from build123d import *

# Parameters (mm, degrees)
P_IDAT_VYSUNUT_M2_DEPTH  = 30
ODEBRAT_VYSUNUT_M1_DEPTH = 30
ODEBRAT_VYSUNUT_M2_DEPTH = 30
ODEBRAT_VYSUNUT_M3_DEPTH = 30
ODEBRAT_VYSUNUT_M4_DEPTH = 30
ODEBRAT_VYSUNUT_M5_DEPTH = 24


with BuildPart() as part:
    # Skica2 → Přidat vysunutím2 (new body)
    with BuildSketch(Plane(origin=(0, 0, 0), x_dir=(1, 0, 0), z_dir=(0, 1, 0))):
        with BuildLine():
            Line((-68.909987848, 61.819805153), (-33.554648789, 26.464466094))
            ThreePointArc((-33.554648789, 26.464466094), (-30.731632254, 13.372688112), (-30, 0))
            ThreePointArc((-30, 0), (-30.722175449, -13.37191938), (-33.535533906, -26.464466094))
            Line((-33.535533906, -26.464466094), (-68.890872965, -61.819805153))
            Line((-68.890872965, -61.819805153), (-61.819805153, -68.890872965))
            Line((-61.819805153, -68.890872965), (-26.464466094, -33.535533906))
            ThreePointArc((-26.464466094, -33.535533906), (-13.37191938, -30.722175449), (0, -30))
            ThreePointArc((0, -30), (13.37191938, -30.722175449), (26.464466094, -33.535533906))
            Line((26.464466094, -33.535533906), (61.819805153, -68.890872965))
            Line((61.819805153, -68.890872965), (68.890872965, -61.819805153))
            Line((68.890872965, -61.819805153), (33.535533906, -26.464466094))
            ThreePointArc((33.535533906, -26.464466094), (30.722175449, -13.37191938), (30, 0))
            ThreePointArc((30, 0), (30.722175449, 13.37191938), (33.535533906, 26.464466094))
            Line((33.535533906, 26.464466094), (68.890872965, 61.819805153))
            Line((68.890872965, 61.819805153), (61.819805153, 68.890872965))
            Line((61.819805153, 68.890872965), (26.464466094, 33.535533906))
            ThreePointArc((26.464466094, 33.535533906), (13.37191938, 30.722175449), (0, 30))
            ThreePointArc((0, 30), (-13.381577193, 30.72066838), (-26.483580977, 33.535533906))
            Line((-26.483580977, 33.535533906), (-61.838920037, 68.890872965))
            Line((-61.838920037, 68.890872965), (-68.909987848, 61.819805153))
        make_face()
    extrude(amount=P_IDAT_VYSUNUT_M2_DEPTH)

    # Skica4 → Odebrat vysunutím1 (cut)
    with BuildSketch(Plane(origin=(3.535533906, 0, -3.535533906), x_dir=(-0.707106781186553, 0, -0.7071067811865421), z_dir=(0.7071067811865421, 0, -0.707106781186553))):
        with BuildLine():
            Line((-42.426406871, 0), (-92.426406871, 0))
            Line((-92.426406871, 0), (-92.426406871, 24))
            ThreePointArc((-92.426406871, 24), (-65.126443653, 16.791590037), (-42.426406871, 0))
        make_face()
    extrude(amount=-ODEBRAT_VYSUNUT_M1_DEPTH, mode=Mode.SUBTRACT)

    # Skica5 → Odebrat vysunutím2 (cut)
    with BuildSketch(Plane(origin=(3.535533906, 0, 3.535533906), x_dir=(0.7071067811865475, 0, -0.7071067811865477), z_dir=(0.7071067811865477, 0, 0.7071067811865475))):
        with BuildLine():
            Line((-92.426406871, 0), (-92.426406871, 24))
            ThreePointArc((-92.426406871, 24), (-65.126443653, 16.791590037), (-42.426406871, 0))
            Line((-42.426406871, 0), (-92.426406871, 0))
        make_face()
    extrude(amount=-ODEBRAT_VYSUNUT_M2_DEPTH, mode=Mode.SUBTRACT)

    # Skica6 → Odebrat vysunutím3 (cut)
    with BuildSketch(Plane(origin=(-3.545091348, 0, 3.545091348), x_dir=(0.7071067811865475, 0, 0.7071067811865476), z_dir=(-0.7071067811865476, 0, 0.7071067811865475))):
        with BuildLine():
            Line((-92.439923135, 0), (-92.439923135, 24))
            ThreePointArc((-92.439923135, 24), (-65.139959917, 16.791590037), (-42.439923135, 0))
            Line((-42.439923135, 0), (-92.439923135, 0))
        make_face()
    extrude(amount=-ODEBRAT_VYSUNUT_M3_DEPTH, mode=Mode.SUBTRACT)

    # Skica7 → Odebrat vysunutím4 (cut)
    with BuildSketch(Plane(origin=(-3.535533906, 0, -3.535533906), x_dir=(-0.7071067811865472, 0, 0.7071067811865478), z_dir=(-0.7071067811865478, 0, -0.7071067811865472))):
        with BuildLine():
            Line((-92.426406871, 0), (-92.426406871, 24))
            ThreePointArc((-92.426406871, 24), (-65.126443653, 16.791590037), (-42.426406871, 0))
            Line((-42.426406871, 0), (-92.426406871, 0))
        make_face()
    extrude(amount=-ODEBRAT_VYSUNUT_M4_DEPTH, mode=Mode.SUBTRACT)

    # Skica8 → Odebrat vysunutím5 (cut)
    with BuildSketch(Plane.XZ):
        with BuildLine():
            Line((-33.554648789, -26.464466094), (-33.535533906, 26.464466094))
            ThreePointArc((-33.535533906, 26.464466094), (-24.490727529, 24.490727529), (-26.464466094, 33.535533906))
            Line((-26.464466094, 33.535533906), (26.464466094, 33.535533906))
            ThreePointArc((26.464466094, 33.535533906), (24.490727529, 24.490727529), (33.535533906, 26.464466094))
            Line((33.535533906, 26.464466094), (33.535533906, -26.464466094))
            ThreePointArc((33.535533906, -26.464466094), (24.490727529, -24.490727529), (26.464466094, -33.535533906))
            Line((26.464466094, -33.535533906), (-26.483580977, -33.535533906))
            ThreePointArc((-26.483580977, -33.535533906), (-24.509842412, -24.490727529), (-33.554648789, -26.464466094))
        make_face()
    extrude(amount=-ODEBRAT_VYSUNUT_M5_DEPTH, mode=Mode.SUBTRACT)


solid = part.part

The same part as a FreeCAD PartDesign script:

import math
import FreeCAD as App
import Part
import Sketcher
from FreeCAD import Vector
Q = App.Units.Quantity

doc = App.newDocument("Part")
body = doc.addObject("PartDesign::Body", "Body")

# Sketch on XZ plane
sketch1 = body.newObject("Sketcher::SketchObject", "Sketch")
sketch1.AttachmentSupport = (doc.getObject("XZ_Plane"), [""])
sketch1.MapMode = "FlatFace"
sketch1.addGeometry(Part.LineSegment(Vector(-69, -62, 0), Vector(-34, -26, 0)), False)
sketch1.addGeometry(Part.ArcOfCircle(Part.Circle(Vector(-115, -2, 0), Vector(0, 0, 1), 85), math.radians(-16.69), math.radians(1.39)), False)
sketch1.addGeometry(Part.ArcOfCircle(Part.Circle(Vector(-115, 2, 0), Vector(0, 0, 1), 85), math.radians(-1.43), math.radians(16.65)), False)
sketch1.addGeometry(Part.LineSegment(Vector(-34, 26, 0), Vector(-69, 62, 0)), False)
sketch1.addGeometry(Part.LineSegment(Vector(-69, 62, 0), Vector(-62, 69, 0)), False)
sketch1.addGeometry(Part.LineSegment(Vector(-62, 69, 0), Vector(-26, 34, 0)), False)
sketch1.addGeometry(Part.ArcOfCircle(Part.Circle(Vector(-2, 115, 0), Vector(0, 0, 1), 85), math.radians(-106.65), math.radians(-88.57)), False)
sketch1.addGeometry(Part.ArcOfCircle(Part.Circle(Vector(2, 115, 0), Vector(0, 0, 1), 85), math.radians(-91.43), math.radians(-73.35)), False)
sketch1.addGeometry(Part.LineSegment(Vector(26, 34, 0), Vector(62, 69, 0)), False)
sketch1.addGeometry(Part.LineSegment(Vector(62, 69, 0), Vector(69, 62, 0)), False)
sketch1.addGeometry(Part.LineSegment(Vector(69, 62, 0), Vector(34, 26, 0)), False)
sketch1.addGeometry(Part.ArcOfCircle(Part.Circle(Vector(115, 2, 0), Vector(0, 0, 1), 85), math.radians(163.35), math.radians(181.43)), False)
sketch1.addGeometry(Part.ArcOfCircle(Part.Circle(Vector(115, -2, 0), Vector(0, 0, 1), 85), math.radians(178.57), math.radians(196.65)), False)
sketch1.addGeometry(Part.LineSegment(Vector(34, -26, 0), Vector(69, -62, 0)), False)
sketch1.addGeometry(Part.LineSegment(Vector(69, -62, 0), Vector(62, -69, 0)), False)
sketch1.addGeometry(Part.LineSegment(Vector(62, -69, 0), Vector(26, -34, 0)), False)
sketch1.addGeometry(Part.ArcOfCircle(Part.Circle(Vector(2, -115, 0), Vector(0, 0, 1), 85), math.radians(73.35), math.radians(91.43)), False)
sketch1.addGeometry(Part.ArcOfCircle(Part.Circle(Vector(-2, -115, 0), Vector(0, 0, 1), 85), math.radians(88.56), math.radians(106.65)), False)
sketch1.addGeometry(Part.LineSegment(Vector(-26, -34, 0), Vector(-62, -69, 0)), False)
sketch1.addGeometry(Part.LineSegment(Vector(-62, -69, 0), Vector(-69, -62, 0)), False)
sketch1.addConstraint(Sketcher.Constraint("Coincident", 0, 2, 1, 1))
sketch1.addConstraint(Sketcher.Constraint("Coincident", 1, 2, 2, 1))
sketch1.addConstraint(Sketcher.Constraint("Coincident", 2, 2, 3, 1))
sketch1.addConstraint(Sketcher.Constraint("Coincident", 3, 2, 4, 1))
sketch1.addConstraint(Sketcher.Constraint("Coincident", 4, 2, 5, 1))
sketch1.addConstraint(Sketcher.Constraint("Coincident", 5, 2, 6, 1))
sketch1.addConstraint(Sketcher.Constraint("Coincident", 6, 2, 7, 1))
sketch1.addConstraint(Sketcher.Constraint("Coincident", 7, 2, 8, 1))
sketch1.addConstraint(Sketcher.Constraint("Coincident", 8, 2, 9, 1))
sketch1.addConstraint(Sketcher.Constraint("Coincident", 9, 2, 10, 1))
sketch1.addConstraint(Sketcher.Constraint("Coincident", 10, 2, 11, 1))
sketch1.addConstraint(Sketcher.Constraint("Coincident", 11, 2, 12, 1))
sketch1.addConstraint(Sketcher.Constraint("Coincident", 12, 2, 13, 1))
sketch1.addConstraint(Sketcher.Constraint("Coincident", 13, 2, 14, 1))
sketch1.addConstraint(Sketcher.Constraint("Coincident", 14, 2, 15, 1))
sketch1.addConstraint(Sketcher.Constraint("Coincident", 15, 2, 16, 1))
sketch1.addConstraint(Sketcher.Constraint("Coincident", 16, 2, 17, 1))
sketch1.addConstraint(Sketcher.Constraint("Coincident", 17, 2, 18, 1))
sketch1.addConstraint(Sketcher.Constraint("Coincident", 18, 2, 19, 1))
sketch1.addConstraint(Sketcher.Constraint("Coincident", 19, 2, 0, 1))
sketch1.addConstraint(Sketcher.Constraint("Equal", 1, 2))
sketch1.addConstraint(Sketcher.Constraint("Equal", 2, 6))
sketch1.addConstraint(Sketcher.Constraint("Equal", 6, 7))
sketch1.addConstraint(Sketcher.Constraint("Equal", 7, 11))
sketch1.addConstraint(Sketcher.Constraint("Equal", 11, 12))
sketch1.addConstraint(Sketcher.Constraint("Equal", 12, 16))
sketch1.addConstraint(Sketcher.Constraint("Equal", 16, 17))
sketch1.addConstraint(Sketcher.Constraint("Symmetric", 2, 3, 12, 3, -1, 1))
sketch1.addConstraint(Sketcher.Constraint("Symmetric", 6, 3, 16, 3, -1, 1))
sketch1.addConstraint(Sketcher.Constraint("Symmetric", 3, 2, 13, 2, -1, 1))
sketch1.addConstraint(Sketcher.Constraint("Symmetric", 4, 2, 14, 2, -1, 1))
sketch1.addConstraint(Sketcher.Constraint("Symmetric", 6, 3, 7, 3, -2))
sketch1.addConstraint(Sketcher.Constraint("Symmetric", 2, 3, 11, 3, -2))
sketch1.addConstraint(Sketcher.Constraint("Symmetric", 4, 2, 8, 2, -2))
sketch1.addConstraint(Sketcher.Constraint("Symmetric", 3, 2, 9, 2, -2))
sketch1.addConstraint(Sketcher.Constraint("PointOnObject", 1, 2, -1))
sketch1.addConstraint(Sketcher.Constraint("PointOnObject", 16, 2, -2))
sketch1.addConstraint(Sketcher.Constraint("Perpendicular", 0, 3))
sketch1.addConstraint(Sketcher.Constraint("Perpendicular", 3, 4))
sketch1.addConstraint(Sketcher.Constraint("Perpendicular", 4, 5))
sketch1.addConstraint(Sketcher.Constraint("Perpendicular", 5, 8))
sketch1.addConstraint(Sketcher.Constraint("Perpendicular", 8, 9))
sketch1.addConstraint(Sketcher.Constraint("Perpendicular", 9, 10))
sketch1.addConstraint(Sketcher.Constraint("Perpendicular", 10, 13))
sketch1.addConstraint(Sketcher.Constraint("Perpendicular", 14, 15))
sketch1.addConstraint(Sketcher.Constraint("Perpendicular", 15, 18))
sketch1.addConstraint(Sketcher.Constraint("Perpendicular", 18, 19))
sketch1.addConstraint(Sketcher.Constraint("Horizontal", 0, 2, 12, 2))
sketch1.addConstraint(Sketcher.Constraint("Horizontal", 15, 2, 17, 2))
sketch1.addConstraint(Sketcher.Constraint("Horizontal", 14, 2, 18, 2))
sketch1.addConstraint(Sketcher.Constraint("Horizontal", 13, 2, 19, 2))
sketch1.addConstraint(Sketcher.Constraint("Equal", 3, 5))
sketch1.addConstraint(Sketcher.Constraint("Radius", 1, Q("85 mm")))
sketch1.addConstraint(Sketcher.Constraint("Distance", 0, Q("50 mm")))
sketch1.addConstraint(Sketcher.Constraint("Distance", 4, Q("10 mm")))
sketch1.addConstraint(Sketcher.Constraint("DistanceX", 1, 2, -1, 1, Q("30 mm")))
sketch1.addConstraint(Sketcher.Constraint("DistanceY", -1, 1, 6, 2, Q("30 mm")))
sketch1.addConstraint(Sketcher.Constraint("DistanceY", 0, 2, 5, 2, Q("60 mm")))
sketch1.addConstraint(Sketcher.Constraint("DistanceX", 2, 2, 7, 2, Q("60 mm")))
sketch1.addConstraint(Sketcher.Constraint("DistanceX", 2, 3, 0, 2, Q("81.419002 mm")))
pad1 = body.newObject("PartDesign::Pad", "Pad")
pad1.Profile = sketch1
pad1.Length = 30
pad1.Reversed = True

# Sketch on an angled plane
sketch2 = body.newObject("Sketcher::SketchObject", "Sketch001")
sketch2.Placement = App.Placement(Vector(3.535534, 0, -3.535534), App.Rotation(Vector(-0.707106781, 0, -0.707106781), Vector(0, 0.999999999, 0), Vector(0.707106781, 0, -0.707106781), "ZXY"))
sketch2.addGeometry(Part.LineSegment(Vector(-92, 0, 0), Vector(-42, 0, 0)), False)
sketch2.addGeometry(Part.ArcOfCircle(Part.Circle(Vector(-98, -51, 0), Vector(0, 0, 1), 75), math.radians(43), math.radians(86)), False)
sketch2.addGeometry(Part.LineSegment(Vector(-92, 24, 0), Vector(-92, 0, 0)), False)
sketch2.addConstraint(Sketcher.Constraint("Coincident", 0, 2, 1, 1))
sketch2.addConstraint(Sketcher.Constraint("Coincident", 1, 2, 2, 1))
sketch2.addConstraint(Sketcher.Constraint("Coincident", 2, 2, 0, 1))
sketch2.addConstraint(Sketcher.Constraint("Horizontal", 0))
sketch2.addConstraint(Sketcher.Constraint("Vertical", 2))
sketch2.addConstraint(Sketcher.Constraint("PointOnObject", 0, 2, -1))
sketch2.addConstraint(Sketcher.Constraint("Radius", 1, Q("75 mm")))
sketch2.addConstraint(Sketcher.Constraint("DistanceX", 0, 1, 0, 2, Q("50 mm")))
sketch2.addConstraint(Sketcher.Constraint("DistanceY", 2, 2, 2, 1, Q("24 mm")))
sketch2.addConstraint(Sketcher.Constraint("DistanceX", 1, 3, -1, 1, Q("97.581274 mm")))
pocket1 = body.newObject("PartDesign::Pocket", "Pocket")
pocket1.Profile = sketch2
pocket1.Length = 30

# Sketch on an angled plane
sketch3 = body.newObject("Sketcher::SketchObject", "Sketch002")
sketch3.Placement = App.Placement(Vector(3.535534, 0, 3.535534), App.Rotation(Vector(0.707106781, 0, -0.707106781), Vector(0, 0.999999999, 0), Vector(0.707106781, 0, 0.707106781), "ZXY"))
sketch3.addGeometry(Part.LineSegment(Vector(-92, 24, 0), Vector(-92, 0, 0)), False)
sketch3.addGeometry(Part.LineSegment(Vector(-92, 0, 0), Vector(-42, 0, 0)), False)
sketch3.addGeometry(Part.ArcOfCircle(Part.Circle(Vector(-98, -51, 0), Vector(0, 0, 1), 75), math.radians(43), math.radians(86)), False)
sketch3.addConstraint(Sketcher.Constraint("Coincident", 0, 2, 1, 1))
sketch3.addConstraint(Sketcher.Constraint("Coincident", 1, 2, 2, 1))
sketch3.addConstraint(Sketcher.Constraint("Coincident", 2, 2, 0, 1))
sketch3.addConstraint(Sketcher.Constraint("Vertical", 0))
sketch3.addConstraint(Sketcher.Constraint("Horizontal", 1))
sketch3.addConstraint(Sketcher.Constraint("PointOnObject", 0, 2, -1))
sketch3.addConstraint(Sketcher.Constraint("Radius", 2, Q("75 mm")))
sketch3.addConstraint(Sketcher.Constraint("DistanceX", 1, 1, 1, 2, Q("50 mm")))
sketch3.addConstraint(Sketcher.Constraint("DistanceY", 0, 2, 0, 1, Q("24 mm")))
sketch3.addConstraint(Sketcher.Constraint("DistanceX", 2, 3, -1, 1, Q("97.581274 mm")))
pocket2 = body.newObject("PartDesign::Pocket", "Pocket001")
pocket2.Profile = sketch3
pocket2.Length = 30

# Sketch on an angled plane
sketch4 = body.newObject("Sketcher::SketchObject", "Sketch003")
sketch4.Placement = App.Placement(Vector(-3.545091, 0, 3.545091), App.Rotation(Vector(0.707106781, 0, 0.707106781), Vector(0, 0.999999999, 0), Vector(-0.707106781, 0, 0.707106781), "ZXY"))
sketch4.addGeometry(Part.LineSegment(Vector(-92, 24, 0), Vector(-92, 0, 0)), False)
sketch4.addGeometry(Part.LineSegment(Vector(-92, 0, 0), Vector(-42, 0, 0)), False)
sketch4.addGeometry(Part.ArcOfCircle(Part.Circle(Vector(-98, -51, 0), Vector(0, 0, 1), 75), math.radians(43), math.radians(86)), False)
sketch4.addConstraint(Sketcher.Constraint("Coincident", 0, 2, 1, 1))
sketch4.addConstraint(Sketcher.Constraint("Coincident", 1, 2, 2, 1))
sketch4.addConstraint(Sketcher.Constraint("Coincident", 2, 2, 0, 1))
sketch4.addConstraint(Sketcher.Constraint("Vertical", 0))
sketch4.addConstraint(Sketcher.Constraint("Horizontal", 1))
sketch4.addConstraint(Sketcher.Constraint("PointOnObject", 0, 2, -1))
sketch4.addConstraint(Sketcher.Constraint("Radius", 2, Q("75 mm")))
sketch4.addConstraint(Sketcher.Constraint("DistanceX", 1, 1, 1, 2, Q("50 mm")))
sketch4.addConstraint(Sketcher.Constraint("DistanceY", 0, 2, 0, 1, Q("24 mm")))
sketch4.addConstraint(Sketcher.Constraint("DistanceX", 2, 3, -1, 1, Q("97.59479 mm")))
pocket3 = body.newObject("PartDesign::Pocket", "Pocket002")
pocket3.Profile = sketch4
pocket3.Length = 30

# Sketch on an angled plane
sketch5 = body.newObject("Sketcher::SketchObject", "Sketch004")
sketch5.Placement = App.Placement(Vector(-3.535534, 0, -3.535534), App.Rotation(Vector(-0.707106781, 0, 0.707106781), Vector(0, 0.999999999, 0), Vector(-0.707106781, 0, -0.707106781), "ZXY"))
sketch5.addGeometry(Part.LineSegment(Vector(-92, 24, 0), Vector(-92, 0, 0)), False)
sketch5.addGeometry(Part.LineSegment(Vector(-92, 0, 0), Vector(-42, 0, 0)), False)
sketch5.addGeometry(Part.ArcOfCircle(Part.Circle(Vector(-98, -51, 0), Vector(0, 0, 1), 75), math.radians(43), math.radians(86)), False)
sketch5.addConstraint(Sketcher.Constraint("Coincident", 0, 2, 1, 1))
sketch5.addConstraint(Sketcher.Constraint("Coincident", 1, 2, 2, 1))
sketch5.addConstraint(Sketcher.Constraint("Coincident", 2, 2, 0, 1))
sketch5.addConstraint(Sketcher.Constraint("Vertical", 0))
sketch5.addConstraint(Sketcher.Constraint("Horizontal", 1))
sketch5.addConstraint(Sketcher.Constraint("PointOnObject", 0, 2, -1))
sketch5.addConstraint(Sketcher.Constraint("Radius", 2, Q("75 mm")))
sketch5.addConstraint(Sketcher.Constraint("DistanceX", 1, 1, 1, 2, Q("50 mm")))
sketch5.addConstraint(Sketcher.Constraint("DistanceY", 0, 2, 0, 1, Q("24 mm")))
sketch5.addConstraint(Sketcher.Constraint("DistanceX", 2, 3, -1, 1, Q("97.581274 mm")))
pocket4 = body.newObject("PartDesign::Pocket", "Pocket003")
pocket4.Profile = sketch5
pocket4.Length = 30

# Sketch on XZ plane
sketch6 = body.newObject("Sketcher::SketchObject", "Sketch005")
sketch6.AttachmentSupport = (doc.getObject("XZ_Plane"), [""])
sketch6.MapMode = "FlatFace"
sketch6.addGeometry(Part.LineSegment(Vector(-34, 26, 0), Vector(-34, -26, 0)), False)
sketch6.addGeometry(Part.ArcOfCircle(Part.Circle(Vector(-28, -28, 0), Vector(0, 0, 1), 6), math.radians(-70), math.radians(160)), False)
sketch6.addGeometry(Part.LineSegment(Vector(-26, -34, 0), Vector(26, -34, 0)), False)
sketch6.addGeometry(Part.ArcOfCircle(Part.Circle(Vector(28, -28, 0), Vector(0, 0, 1), 6), math.radians(20), math.radians(250)), False)
sketch6.addGeometry(Part.LineSegment(Vector(34, -26, 0), Vector(34, 26, 0)), False)
sketch6.addGeometry(Part.ArcOfCircle(Part.Circle(Vector(28, 28, 0), Vector(0, 0, 1), 6), math.radians(110), math.radians(340)), False)
sketch6.addGeometry(Part.LineSegment(Vector(26, 34, 0), Vector(-26, 34, 0)), False)
sketch6.addGeometry(Part.ArcOfCircle(Part.Circle(Vector(-28, 28, 0), Vector(0, 0, 1), 6), math.radians(-160), math.radians(70)), False)
sketch6.addConstraint(Sketcher.Constraint("Coincident", 0, 2, 1, 2))
sketch6.addConstraint(Sketcher.Constraint("Coincident", 1, 1, 2, 1))
sketch6.addConstraint(Sketcher.Constraint("Coincident", 2, 2, 3, 2))
sketch6.addConstraint(Sketcher.Constraint("Coincident", 3, 1, 4, 1))
sketch6.addConstraint(Sketcher.Constraint("Coincident", 4, 2, 5, 2))
sketch6.addConstraint(Sketcher.Constraint("Coincident", 5, 1, 6, 1))
sketch6.addConstraint(Sketcher.Constraint("Coincident", 6, 2, 7, 2))
sketch6.addConstraint(Sketcher.Constraint("Coincident", 7, 1, 0, 1))
sketch6.addConstraint(Sketcher.Constraint("Horizontal", 2))
sketch6.addConstraint(Sketcher.Constraint("Vertical", 4))
sketch6.addConstraint(Sketcher.Constraint("Horizontal", 6))
sketch6.addConstraint(Sketcher.Constraint("Equal", 1, 3))
sketch6.addConstraint(Sketcher.Constraint("Equal", 3, 5))
sketch6.addConstraint(Sketcher.Constraint("Equal", 5, 7))
sketch6.addConstraint(Sketcher.Constraint("Symmetric", 3, 3, 7, 3, -1, 1))
sketch6.addConstraint(Sketcher.Constraint("Symmetric", 5, 3, 7, 3, -2))
sketch6.addConstraint(Sketcher.Constraint("Horizontal", 1, 3, 3, 3))
sketch6.addConstraint(Sketcher.Constraint("Horizontal", 0, 2, 3, 1))
sketch6.addConstraint(Sketcher.Constraint("Horizontal", 4, 2, 7, 1))
sketch6.addConstraint(Sketcher.Constraint("Vertical", 2, 2, 5, 1))
sketch6.addConstraint(Sketcher.Constraint("Equal", 6, 4))
sketch6.addConstraint(Sketcher.Constraint("Radius", 1, Q("5.5 mm")))
sketch6.addConstraint(Sketcher.Constraint("DistanceY", 2, 2, 4, 2, Q("60 mm")))
sketch6.addConstraint(Sketcher.Constraint("DistanceX", 6, 2, 4, 2, Q("60 mm")))
sketch6.addConstraint(Sketcher.Constraint("DistanceX", 2, 1, 2, 2, Q("52.948047 mm")))
sketch6.addConstraint(Sketcher.Constraint("DistanceX", 6, 2, 6, 1, Q("52.928932 mm")))
pocket5 = body.newObject("PartDesign::Pocket", "Pocket004")
pocket5.Profile = sketch6
pocket5.Length = 24

doc.recompute()
